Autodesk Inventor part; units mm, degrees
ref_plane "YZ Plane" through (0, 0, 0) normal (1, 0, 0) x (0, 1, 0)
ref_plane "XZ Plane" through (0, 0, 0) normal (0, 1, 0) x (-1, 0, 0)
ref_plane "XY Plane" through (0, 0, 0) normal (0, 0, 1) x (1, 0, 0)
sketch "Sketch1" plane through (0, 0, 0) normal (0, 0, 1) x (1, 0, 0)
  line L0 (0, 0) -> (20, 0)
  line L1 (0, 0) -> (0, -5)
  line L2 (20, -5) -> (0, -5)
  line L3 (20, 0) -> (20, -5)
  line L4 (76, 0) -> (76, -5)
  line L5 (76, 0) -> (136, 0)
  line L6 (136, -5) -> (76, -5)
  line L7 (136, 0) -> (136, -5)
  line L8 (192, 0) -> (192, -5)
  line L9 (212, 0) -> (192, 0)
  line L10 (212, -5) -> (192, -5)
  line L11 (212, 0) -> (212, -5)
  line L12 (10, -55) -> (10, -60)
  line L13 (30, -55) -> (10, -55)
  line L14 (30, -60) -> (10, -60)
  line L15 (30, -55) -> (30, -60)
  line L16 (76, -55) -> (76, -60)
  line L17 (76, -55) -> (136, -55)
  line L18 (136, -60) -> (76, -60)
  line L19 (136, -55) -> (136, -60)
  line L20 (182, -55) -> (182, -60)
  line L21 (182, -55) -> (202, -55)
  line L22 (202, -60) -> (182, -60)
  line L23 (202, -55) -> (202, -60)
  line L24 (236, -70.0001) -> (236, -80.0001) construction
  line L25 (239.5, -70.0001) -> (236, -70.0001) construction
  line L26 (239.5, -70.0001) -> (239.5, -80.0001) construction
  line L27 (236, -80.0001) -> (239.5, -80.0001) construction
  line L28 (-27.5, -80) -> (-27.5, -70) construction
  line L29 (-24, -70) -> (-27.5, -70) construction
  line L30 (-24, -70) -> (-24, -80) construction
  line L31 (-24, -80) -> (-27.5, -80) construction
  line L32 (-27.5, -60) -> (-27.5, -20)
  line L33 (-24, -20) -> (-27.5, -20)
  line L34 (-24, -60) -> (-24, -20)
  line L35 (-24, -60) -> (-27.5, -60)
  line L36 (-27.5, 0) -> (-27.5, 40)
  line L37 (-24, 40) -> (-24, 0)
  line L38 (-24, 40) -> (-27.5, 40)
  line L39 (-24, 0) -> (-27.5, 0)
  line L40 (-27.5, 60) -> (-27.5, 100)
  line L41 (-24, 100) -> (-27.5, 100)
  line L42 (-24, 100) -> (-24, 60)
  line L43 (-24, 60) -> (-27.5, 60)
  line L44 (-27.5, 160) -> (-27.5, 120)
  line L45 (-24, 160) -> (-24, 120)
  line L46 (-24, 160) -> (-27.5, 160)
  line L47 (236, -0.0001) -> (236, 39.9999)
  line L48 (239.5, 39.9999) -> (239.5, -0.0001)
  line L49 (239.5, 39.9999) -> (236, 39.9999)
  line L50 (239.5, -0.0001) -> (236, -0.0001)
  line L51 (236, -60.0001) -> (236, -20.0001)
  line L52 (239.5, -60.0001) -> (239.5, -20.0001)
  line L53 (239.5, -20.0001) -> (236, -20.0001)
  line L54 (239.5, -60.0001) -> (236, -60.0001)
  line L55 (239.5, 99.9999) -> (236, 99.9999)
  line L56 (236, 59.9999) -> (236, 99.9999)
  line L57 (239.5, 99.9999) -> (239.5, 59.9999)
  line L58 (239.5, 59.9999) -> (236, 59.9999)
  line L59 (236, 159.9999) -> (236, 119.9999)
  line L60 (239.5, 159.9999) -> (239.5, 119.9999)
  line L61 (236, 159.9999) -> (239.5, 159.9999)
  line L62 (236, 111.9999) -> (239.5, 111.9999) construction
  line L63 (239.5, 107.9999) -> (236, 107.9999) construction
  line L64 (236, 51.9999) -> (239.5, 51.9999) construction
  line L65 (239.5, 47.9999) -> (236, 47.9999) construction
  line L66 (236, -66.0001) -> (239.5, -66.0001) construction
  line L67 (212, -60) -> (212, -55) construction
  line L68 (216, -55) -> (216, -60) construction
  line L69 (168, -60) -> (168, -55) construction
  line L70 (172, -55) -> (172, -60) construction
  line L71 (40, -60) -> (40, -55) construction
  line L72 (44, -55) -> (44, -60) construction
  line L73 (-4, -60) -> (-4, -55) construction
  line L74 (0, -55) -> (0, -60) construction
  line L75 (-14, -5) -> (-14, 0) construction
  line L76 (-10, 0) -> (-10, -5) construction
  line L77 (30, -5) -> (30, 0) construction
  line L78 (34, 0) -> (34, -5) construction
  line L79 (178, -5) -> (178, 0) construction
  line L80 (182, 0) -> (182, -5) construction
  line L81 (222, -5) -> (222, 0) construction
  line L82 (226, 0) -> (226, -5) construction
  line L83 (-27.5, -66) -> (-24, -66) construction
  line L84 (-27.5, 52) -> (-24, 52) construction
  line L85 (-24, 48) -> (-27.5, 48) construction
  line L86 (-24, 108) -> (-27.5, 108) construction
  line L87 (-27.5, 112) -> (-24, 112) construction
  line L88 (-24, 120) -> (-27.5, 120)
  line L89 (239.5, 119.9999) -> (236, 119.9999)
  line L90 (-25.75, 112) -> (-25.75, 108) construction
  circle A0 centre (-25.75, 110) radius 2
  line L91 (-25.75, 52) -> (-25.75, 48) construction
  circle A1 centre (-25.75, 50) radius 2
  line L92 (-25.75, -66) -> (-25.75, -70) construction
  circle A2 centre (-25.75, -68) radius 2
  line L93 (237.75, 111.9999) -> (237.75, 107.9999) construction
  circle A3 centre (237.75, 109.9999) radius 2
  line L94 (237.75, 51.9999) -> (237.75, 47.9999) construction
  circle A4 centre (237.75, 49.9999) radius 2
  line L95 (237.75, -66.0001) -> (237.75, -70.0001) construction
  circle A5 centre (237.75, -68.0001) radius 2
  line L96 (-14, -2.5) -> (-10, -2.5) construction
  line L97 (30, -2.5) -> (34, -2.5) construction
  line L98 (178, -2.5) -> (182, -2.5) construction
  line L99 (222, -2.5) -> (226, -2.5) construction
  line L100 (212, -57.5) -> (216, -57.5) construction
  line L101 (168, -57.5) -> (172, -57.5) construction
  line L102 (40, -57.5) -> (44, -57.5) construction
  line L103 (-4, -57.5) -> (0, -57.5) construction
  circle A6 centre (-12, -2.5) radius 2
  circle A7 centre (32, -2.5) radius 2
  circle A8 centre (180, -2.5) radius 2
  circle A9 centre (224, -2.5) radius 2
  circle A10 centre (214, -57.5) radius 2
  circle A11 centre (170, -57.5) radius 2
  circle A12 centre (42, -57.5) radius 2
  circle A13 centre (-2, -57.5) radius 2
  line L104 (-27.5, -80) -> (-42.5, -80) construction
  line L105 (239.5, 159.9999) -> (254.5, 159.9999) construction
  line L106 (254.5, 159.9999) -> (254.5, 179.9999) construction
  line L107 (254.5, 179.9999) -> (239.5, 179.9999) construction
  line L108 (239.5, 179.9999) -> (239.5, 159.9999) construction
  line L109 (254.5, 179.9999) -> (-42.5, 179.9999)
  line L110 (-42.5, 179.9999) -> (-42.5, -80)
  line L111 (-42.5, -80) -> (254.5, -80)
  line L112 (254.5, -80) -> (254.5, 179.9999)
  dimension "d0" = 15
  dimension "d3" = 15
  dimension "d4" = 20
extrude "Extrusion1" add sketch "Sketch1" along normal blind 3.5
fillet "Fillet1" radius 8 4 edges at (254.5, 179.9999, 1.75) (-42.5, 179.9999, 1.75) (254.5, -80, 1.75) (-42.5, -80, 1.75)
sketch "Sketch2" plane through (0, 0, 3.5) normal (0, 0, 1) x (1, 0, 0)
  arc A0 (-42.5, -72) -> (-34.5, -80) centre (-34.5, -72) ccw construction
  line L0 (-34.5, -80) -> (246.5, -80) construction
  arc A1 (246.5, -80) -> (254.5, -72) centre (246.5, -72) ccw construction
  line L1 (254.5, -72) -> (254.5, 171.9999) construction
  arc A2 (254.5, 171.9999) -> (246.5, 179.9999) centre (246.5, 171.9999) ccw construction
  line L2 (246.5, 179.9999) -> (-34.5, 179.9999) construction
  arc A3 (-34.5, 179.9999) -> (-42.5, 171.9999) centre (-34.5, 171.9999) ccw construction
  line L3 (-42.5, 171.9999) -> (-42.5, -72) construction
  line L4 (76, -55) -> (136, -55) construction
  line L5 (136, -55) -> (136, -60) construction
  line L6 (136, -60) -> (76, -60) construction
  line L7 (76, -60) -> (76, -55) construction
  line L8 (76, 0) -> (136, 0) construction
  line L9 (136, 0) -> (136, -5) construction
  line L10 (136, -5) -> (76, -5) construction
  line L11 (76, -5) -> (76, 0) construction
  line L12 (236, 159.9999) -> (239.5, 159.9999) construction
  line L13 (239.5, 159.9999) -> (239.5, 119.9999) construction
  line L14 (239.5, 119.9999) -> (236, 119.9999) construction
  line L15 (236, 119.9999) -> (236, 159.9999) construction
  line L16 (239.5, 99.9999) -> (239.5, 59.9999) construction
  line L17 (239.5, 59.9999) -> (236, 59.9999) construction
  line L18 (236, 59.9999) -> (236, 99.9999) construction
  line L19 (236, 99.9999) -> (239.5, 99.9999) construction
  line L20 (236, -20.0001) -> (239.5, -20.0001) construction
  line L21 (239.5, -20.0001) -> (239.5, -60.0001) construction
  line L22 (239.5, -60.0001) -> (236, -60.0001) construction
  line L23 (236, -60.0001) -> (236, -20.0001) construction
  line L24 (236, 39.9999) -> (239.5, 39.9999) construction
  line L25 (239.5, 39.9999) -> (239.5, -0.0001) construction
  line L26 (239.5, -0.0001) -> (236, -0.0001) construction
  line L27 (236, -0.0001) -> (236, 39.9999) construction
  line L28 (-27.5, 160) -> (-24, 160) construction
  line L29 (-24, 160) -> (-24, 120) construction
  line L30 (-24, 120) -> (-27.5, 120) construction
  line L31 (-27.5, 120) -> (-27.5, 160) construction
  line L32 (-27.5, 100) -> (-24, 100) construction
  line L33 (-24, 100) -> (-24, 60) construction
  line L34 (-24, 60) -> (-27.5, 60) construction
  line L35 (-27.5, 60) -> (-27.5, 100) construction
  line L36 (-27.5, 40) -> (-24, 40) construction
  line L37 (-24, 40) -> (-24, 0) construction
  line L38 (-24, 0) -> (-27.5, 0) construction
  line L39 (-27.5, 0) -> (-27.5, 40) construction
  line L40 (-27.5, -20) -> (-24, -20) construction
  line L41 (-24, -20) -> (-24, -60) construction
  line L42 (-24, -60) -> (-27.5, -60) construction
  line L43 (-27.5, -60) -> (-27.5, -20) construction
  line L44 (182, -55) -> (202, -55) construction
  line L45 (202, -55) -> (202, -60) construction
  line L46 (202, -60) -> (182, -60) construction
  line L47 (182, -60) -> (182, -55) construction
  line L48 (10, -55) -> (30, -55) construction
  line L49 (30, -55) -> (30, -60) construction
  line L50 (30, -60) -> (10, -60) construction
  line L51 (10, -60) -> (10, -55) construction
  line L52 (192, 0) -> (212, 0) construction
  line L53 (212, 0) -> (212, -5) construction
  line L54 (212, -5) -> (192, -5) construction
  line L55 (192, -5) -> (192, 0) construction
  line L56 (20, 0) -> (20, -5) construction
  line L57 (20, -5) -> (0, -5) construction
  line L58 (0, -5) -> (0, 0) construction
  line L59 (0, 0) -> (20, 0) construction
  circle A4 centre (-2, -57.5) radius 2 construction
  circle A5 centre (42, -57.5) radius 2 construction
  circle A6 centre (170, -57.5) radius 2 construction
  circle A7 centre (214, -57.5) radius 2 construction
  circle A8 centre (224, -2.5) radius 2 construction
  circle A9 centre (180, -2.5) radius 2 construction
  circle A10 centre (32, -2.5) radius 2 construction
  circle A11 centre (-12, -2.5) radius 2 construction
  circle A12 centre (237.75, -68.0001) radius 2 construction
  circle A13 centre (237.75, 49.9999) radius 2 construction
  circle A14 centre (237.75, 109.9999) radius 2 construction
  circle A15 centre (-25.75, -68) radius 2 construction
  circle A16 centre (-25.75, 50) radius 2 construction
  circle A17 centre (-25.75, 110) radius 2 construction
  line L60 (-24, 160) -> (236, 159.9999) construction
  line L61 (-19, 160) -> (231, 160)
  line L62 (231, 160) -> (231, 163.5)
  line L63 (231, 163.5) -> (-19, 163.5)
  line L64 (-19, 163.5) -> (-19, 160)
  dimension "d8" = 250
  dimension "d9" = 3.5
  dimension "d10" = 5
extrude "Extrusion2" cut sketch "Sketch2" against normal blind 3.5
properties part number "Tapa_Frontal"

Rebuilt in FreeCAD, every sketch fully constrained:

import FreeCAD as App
import Part
import Sketcher

V = App.Vector


def edges_at(feature, points):
    """Names of the edges that pass closest to the given points."""
    edges = feature.Shape.Edges
    near = lambda p: min(range(len(edges)), key=lambda i: edges[i].distToShape(Part.Vertex(*p))[0])
    return sorted({f"Edge{near(p) + 1}" for p in points})


def add_polygon(sketch, points):
    """Adds a closed chain of lines whose ends are joined by coincident constraints."""
    first, n = sketch.GeometryCount, len(points)
    for a, b in zip(points, points[1:] + points[:1]):
        sketch.addGeometry(Part.LineSegment(App.Vector(*a, 0), App.Vector(*b, 0)), False)
    for i in range(n):
        sketch.addConstraint(Sketcher.Constraint("Coincident", first + i, 2, first + (i + 1) % n, 1))

doc = App.newDocument("Part")
body = doc.addObject("PartDesign::Body", "Body")

# Sketch on XY plane
sketch1 = doc.addObject("Sketcher::SketchObject", "Sketch")
body.addObject(sketch1)
sketch1.AttachmentSupport = (doc.XY_Plane, [""])
sketch1.MapMode = "FlatFace"
add_polygon(sketch1, [(254.5, -80), (254.5, 179.9999), (-42.5, 179.9999), (-42.5, -80)])  # lines 0-3
sketch1.addGeometry(Part.Circle(V(-25.75, -68, 0), V(0, 0, 1), 2), False)  # 4
sketch1.addGeometry(Part.Circle(V(-2, -57.5, 0), V(0, 0, 1), 2), False)  # 5
add_polygon(sketch1, [(10, -60), (10, -55), (30, -55), (30, -60)])  # lines 6-9
add_polygon(sketch1, [(-24, -60), (-27.5, -60), (-27.5, -20), (-24, -20)])  # lines 10-13
sketch1.addGeometry(Part.Circle(V(42, -57.5, 0), V(0, 0, 1), 2), False)  # 14
sketch1.addGeometry(Part.Circle(V(-12, -2.5, 0), V(0, 0, 1), 2), False)  # 15
add_polygon(sketch1, [(0, -5), (0, 0), (20, 0), (20, -5)])  # lines 16-19
add_polygon(sketch1, [(-24, 0), (-27.5, 0), (-27.5, 40), (-24, 40)])  # lines 20-23
sketch1.addGeometry(Part.Circle(V(32, -2.5, 0), V(0, 0, 1), 2), False)  # 24
add_polygon(sketch1, [(76, -60), (76, -55), (136, -55), (136, -60)])  # lines 25-28
sketch1.addGeometry(Part.Circle(V(170, -57.5, 0), V(0, 0, 1), 2), False)  # 29
add_polygon(sketch1, [(182, -60), (182, -55), (202, -55), (202, -60)])  # lines 30-33
sketch1.addGeometry(Part.Circle(V(214, -57.5, 0), V(0, 0, 1), 2), False)  # 34
sketch1.addGeometry(Part.Circle(V(237.75, -68.0001, 0), V(0, 0, 1), 2), False)  # 35
add_polygon(sketch1, [(239.5, -60.0001), (236, -60.0001), (236, -20.0001), (239.5, -20.0001)])  # lines 36-39
add_polygon(sketch1, [(76, -5), (76, 0), (136, 0), (136, -5)])  # lines 40-43
sketch1.addGeometry(Part.Circle(V(180, -2.5, 0), V(0, 0, 1), 2), False)  # 44
add_polygon(sketch1, [(192, -5), (192, 0), (212, 0), (212, -5)])  # lines 45-48
sketch1.addGeometry(Part.Circle(V(224, -2.5, 0), V(0, 0, 1), 2), False)  # 49
add_polygon(sketch1, [(239.5, -0.0001), (236, -0.0001), (236, 39.9999), (239.5, 39.9999)])  # lines 50-53
sketch1.addGeometry(Part.Circle(V(237.75, 49.9999, 0), V(0, 0, 1), 2), False)  # 54
sketch1.addGeometry(Part.Circle(V(-25.75, 50, 0), V(0, 0, 1), 2), False)  # 55
add_polygon(sketch1, [(-24, 60), (-27.5, 60), (-27.5, 100), (-24, 100)])  # lines 56-59
sketch1.addGeometry(Part.Circle(V(-25.75, 110, 0), V(0, 0, 1), 2), False)  # 60
add_polygon(sketch1, [(-27.5, 120), (-27.5, 160), (-24, 160), (-24, 120)])  # lines 61-64
add_polygon(sketch1, [(236, 99.9999), (239.5, 99.9999), (239.5, 59.9999), (236, 59.9999)])  # lines 65-68
sketch1.addGeometry(Part.Circle(V(237.75, 109.9999, 0), V(0, 0, 1), 2), False)  # 69
add_polygon(sketch1, [(236, 119.9999), (236, 159.9999), (239.5, 159.9999), (239.5, 119.9999)])  # lines 70-73
sketch1.addConstraint(Sketcher.Constraint("Vertical", 0))
sketch1.addConstraint(Sketcher.Constraint("Horizontal", 1))
sketch1.addConstraint(Sketcher.Constraint("Vertical", 2))
sketch1.addConstraint(Sketcher.Constraint("Horizontal", 3))
sketch1.addConstraint(Sketcher.Constraint("Vertical", 6))
sketch1.addConstraint(Sketcher.Constraint("Horizontal", 7))
sketch1.addConstraint(Sketcher.Constraint("Vertical", 8))
sketch1.addConstraint(Sketcher.Constraint("Horizontal", 9))
sketch1.addConstraint(Sketcher.Constraint("Horizontal", 10))
sketch1.addConstraint(Sketcher.Constraint("Vertical", 11))
sketch1.addConstraint(Sketcher.Constraint("Horizontal", 12))
sketch1.addConstraint(Sketcher.Constraint("Vertical", 13))
sketch1.addConstraint(Sketcher.Constraint("Vertical", 16))
sketch1.addConstraint(Sketcher.Constraint("Horizontal", 17))
sketch1.addConstraint(Sketcher.Constraint("Vertical", 18))
sketch1.addConstraint(Sketcher.Constraint("Horizontal", 19))
sketch1.addConstraint(Sketcher.Constraint("Horizontal", 20))
sketch1.addConstraint(Sketcher.Constraint("Vertical", 21))
sketch1.addConstraint(Sketcher.Constraint("Horizontal", 22))
sketch1.addConstraint(Sketcher.Constraint("Vertical", 23))
sketch1.addConstraint(Sketcher.Constraint("Vertical", 25))
sketch1.addConstraint(Sketcher.Constraint("Horizontal", 26))
sketch1.addConstraint(Sketcher.Constraint("Vertical", 27))
sketch1.addConstraint(Sketcher.Constraint("Horizontal", 28))
sketch1.addConstraint(Sketcher.Constraint("Vertical", 30))
sketch1.addConstraint(Sketcher.Constraint("Horizontal", 31))
sketch1.addConstraint(Sketcher.Constraint("Vertical", 32))
sketch1.addConstraint(Sketcher.Constraint("Horizontal", 33))
sketch1.addConstraint(Sketcher.Constraint("Horizontal", 36))
sketch1.addConstraint(Sketcher.Constraint("Vertical", 37))
sketch1.addConstraint(Sketcher.Constraint("Horizontal", 38))
sketch1.addConstraint(Sketcher.Constraint("Vertical", 39))
sketch1.addConstraint(Sketcher.Constraint("Vertical", 40))
sketch1.addConstraint(Sketcher.Constraint("Horizontal", 41))
sketch1.addConstraint(Sketcher.Constraint("Vertical", 42))
sketch1.addConstraint(Sketcher.Constraint("Horizontal", 43))
sketch1.addConstraint(Sketcher.Constraint("Vertical", 45))
sketch1.addConstraint(Sketcher.Constraint("Horizontal", 46))
sketch1.addConstraint(Sketcher.Constraint("Vertical", 47))
sketch1.addConstraint(Sketcher.Constraint("Horizontal", 48))
sketch1.addConstraint(Sketcher.Constraint("Horizontal", 50))
sketch1.addConstraint(Sketcher.Constraint("Vertical", 51))
sketch1.addConstraint(Sketcher.Constraint("Horizontal", 52))
sketch1.addConstraint(Sketcher.Constraint("Vertical", 53))
sketch1.addConstraint(Sketcher.Constraint("Horizontal", 56))
sketch1.addConstraint(Sketcher.Constraint("Vertical", 57))
sketch1.addConstraint(Sketcher.Constraint("Horizontal", 58))
sketch1.addConstraint(Sketcher.Constraint("Vertical", 59))
sketch1.addConstraint(Sketcher.Constraint("Vertical", 61))
sketch1.addConstraint(Sketcher.Constraint("Horizontal", 62))
sketch1.addConstraint(Sketcher.Constraint("Vertical", 63))
sketch1.addConstraint(Sketcher.Constraint("Horizontal", 64))
sketch1.addConstraint(Sketcher.Constraint("Horizontal", 65))
sketch1.addConstraint(Sketcher.Constraint("Vertical", 66))
sketch1.addConstraint(Sketcher.Constraint("Horizontal", 67))
sketch1.addConstraint(Sketcher.Constraint("Vertical", 68))
sketch1.addConstraint(Sketcher.Constraint("Vertical", 70))
sketch1.addConstraint(Sketcher.Constraint("Horizontal", 71))
sketch1.addConstraint(Sketcher.Constraint("Vertical", 72))
sketch1.addConstraint(Sketcher.Constraint("Horizontal", 73))
sketch1.addConstraint(Sketcher.Constraint("Coincident", 16, 2, -1, 1))
sketch1.addConstraint(Sketcher.Constraint("Equal", 4, 5))
sketch1.addConstraint(Sketcher.Constraint("Equal", 5, 14))
sketch1.addConstraint(Sketcher.Constraint("Equal", 14, 15))
sketch1.addConstraint(Sketcher.Constraint("Equal", 15, 24))
sketch1.addConstraint(Sketcher.Constraint("Equal", 24, 29))
sketch1.addConstraint(Sketcher.Constraint("Equal", 29, 34))
sketch1.addConstraint(Sketcher.Constraint("Equal", 34, 35))
sketch1.addConstraint(Sketcher.Constraint("Equal", 35, 44))
sketch1.addConstraint(Sketcher.Constraint("Equal", 44, 49))
sketch1.addConstraint(Sketcher.Constraint("Equal", 49, 54))
sketch1.addConstraint(Sketcher.Constraint("Equal", 54, 55))
sketch1.addConstraint(Sketcher.Constraint("Equal", 55, 60))
sketch1.addConstraint(Sketcher.Constraint("Equal", 60, 69))
sketch1.addConstraint(Sketcher.Constraint("Symmetric", 10, 2, 56, 2, -1))
sketch1.addConstraint(Sketcher.Constraint("Symmetric", 39, 2, 66, 2, -1))
sketch1.addConstraint(Sketcher.Constraint("PointOnObject", 20, 2, -1))
sketch1.addConstraint(Sketcher.Constraint("PointOnObject", 40, 2, -1))
sketch1.addConstraint(Sketcher.Constraint("PointOnObject", 45, 2, -1))
sketch1.addConstraint(Sketcher.Constraint("PointOnObject", 50, 2, -1))
sketch1.addConstraint(Sketcher.Constraint("Horizontal", 5, 3, 14, 3))
sketch1.addConstraint(Sketcher.Constraint("Horizontal", 15, 3, 24, 3))
sketch1.addConstraint(Sketcher.Constraint("Horizontal", 14, 3, 29, 3))
sketch1.addConstraint(Sketcher.Constraint("Horizontal", 29, 3, 34, 3))
sketch1.addConstraint(Sketcher.Constraint("Horizontal", 4, 3, 35, 3))
sketch1.addConstraint(Sketcher.Constraint("Horizontal", 24, 3, 44, 3))
sketch1.addConstraint(Sketcher.Constraint("Horizontal", 44, 3, 49, 3))
sketch1.addConstraint(Sketcher.Constraint("Horizontal", 54, 3, 55, 3))
sketch1.addConstraint(Sketcher.Constraint("Horizontal", 60, 3, 69, 3))
sketch1.addConstraint(Sketcher.Constraint("Horizontal", 9, 2, 10, 2))
sketch1.addConstraint(Sketcher.Constraint("Horizontal", 7, 2, 25, 2))
sketch1.addConstraint(Sketcher.Constraint("Horizontal", 13, 2, 27, 2))
sketch1.addConstraint(Sketcher.Constraint("Horizontal", 26, 2, 30, 2))
sketch1.addConstraint(Sketcher.Constraint("Horizontal", 28, 2, 32, 2))
sketch1.addConstraint(Sketcher.Constraint("Horizontal", 33, 2, 36, 2))
sketch1.addConstraint(Sketcher.Constraint("Horizontal", 12, 2, 37, 2))
sketch1.addConstraint(Sketcher.Constraint("Horizontal", 19, 2, 42, 2))
sketch1.addConstraint(Sketcher.Constraint("Horizontal", 43, 2, 47, 2))
sketch1.addConstraint(Sketcher.Constraint("Horizontal", 22, 2, 51, 2))
sketch1.addConstraint(Sketcher.Constraint("Horizontal", 58, 2, 65, 2))
sketch1.addConstraint(Sketcher.Constraint("Horizontal", 62, 2, 70, 2))
sketch1.addConstraint(Sketcher.Constraint("Horizontal", 64, 2, 72, 2))
sketch1.addConstraint(Sketcher.Constraint("Vertical", 35, 3, 54, 3))
sketch1.addConstraint(Sketcher.Constraint("Vertical", 4, 3, 55, 3))
sketch1.addConstraint(Sketcher.Constraint("Vertical", 55, 3, 60, 3))
sketch1.addConstraint(Sketcher.Constraint("Vertical", 54, 3, 69, 3))
sketch1.addConstraint(Sketcher.Constraint("Vertical", 11, 2, 20, 2))
sketch1.addConstraint(Sketcher.Constraint("Vertical", 13, 2, 22, 2))
sketch1.addConstraint(Sketcher.Constraint("Vertical", 28, 2, 40, 2))
sketch1.addConstraint(Sketcher.Constraint("Vertical", 27, 2, 41, 2))
sketch1.addConstraint(Sketcher.Constraint("Vertical", 37, 2, 50, 2))
sketch1.addConstraint(Sketcher.Constraint("Vertical", 39, 2, 52, 2))
sketch1.addConstraint(Sketcher.Constraint("Vertical", 23, 2, 58, 2))
sketch1.addConstraint(Sketcher.Constraint("Vertical", 57, 2, 61, 2))
sketch1.addConstraint(Sketcher.Constraint("Vertical", 59, 2, 62, 2))
sketch1.addConstraint(Sketcher.Constraint("Vertical", 51, 2, 67, 2))
sketch1.addConstraint(Sketcher.Constraint("Vertical", 68, 2, 70, 2))
sketch1.addConstraint(Sketcher.Constraint("Vertical", 66, 2, 71, 2))
sketch1.addConstraint(Sketcher.Constraint("Equal", 9, 17))
sketch1.addConstraint(Sketcher.Constraint("Equal", 19, 31))
sketch1.addConstraint(Sketcher.Constraint("Equal", 22, 36))
sketch1.addConstraint(Sketcher.Constraint("Equal", 33, 46))
sketch1.addConstraint(Sketcher.Constraint("Equal", 8, 16))
sketch1.addConstraint(Sketcher.Constraint("Equal", 13, 21))
sketch1.addConstraint(Sketcher.Constraint("Equal", 53, 57))
sketch1.addConstraint(Sketcher.Constraint("Equal", 59, 61))
sketch1.addConstraint(Sketcher.Constraint("DistanceX", 7, 1, 7, 2, 20.0))
sketch1.addConstraint(Sketcher.Constraint("Diameter", 4, 4.0))
sketch1.addConstraint(Sketcher.Constraint("DistanceY", 11, 2, -1, 1, 20.0))
sketch1.addConstraint(Sketcher.Constraint("DistanceX", 1, 2, 1, 1, 297.0))
sketch1.addConstraint(Sketcher.Constraint("DistanceX", 26, 1, 26, 2, 60.0))
sketch1.addConstraint(Sketcher.Constraint("DistanceY", 0, 1, 0, 2, 260.0))
sketch1.addConstraint(Sketcher.Constraint("DistanceY", 6, 1, 6, 2, 5.0))
sketch1.addConstraint(Sketcher.Constraint("DistanceY", 11, 1, 11, 2, 40.0))
sketch1.addConstraint(Sketcher.Constraint("DistanceX", 10, 2, 10, 1, 3.5))
sketch1.addConstraint(Sketcher.Constraint("DistanceY", 4, 3, -1, 1, 68.0))
sketch1.addConstraint(Sketcher.Constraint("DistanceX", 5, 3, -1, 1, 2.0))
sketch1.addConstraint(Sketcher.Constraint("DistanceX", -1, 1, 14, 3, 42.0))
sketch1.addConstraint(Sketcher.Constraint("DistanceX", 15, 3, -1, 1, 12.0))
sketch1.addConstraint(Sketcher.Constraint("DistanceX", -1, 1, 24, 3, 32.0))
sketch1.addConstraint(Sketcher.Constraint("DistanceX", -1, 1, 29, 3, 170.0))
sketch1.addConstraint(Sketcher.Constraint("DistanceX", -1, 1, 34, 3, 214.0))
sketch1.addConstraint(Sketcher.Constraint("DistanceX", -1, 1, 44, 3, 180.0))
sketch1.addConstraint(Sketcher.Constraint("DistanceX", -1, 1, 49, 3, 224.0))
sketch1.addConstraint(Sketcher.Constraint("DistanceY", -1, 1, 54, 3, 50.0))
sketch1.addConstraint(Sketcher.Constraint("DistanceY", -1, 1, 60, 3, 110.0))
sketch1.addConstraint(Sketcher.Constraint("DistanceY", -1, 1, 0, 2, 180.0))
sketch1.addConstraint(Sketcher.Constraint("DistanceX", -1, 1, 6, 2, 10.0))
sketch1.addConstraint(Sketcher.Constraint("DistanceX", 12, 2, -1, 1, 24.0))
sketch1.addConstraint(Sketcher.Constraint("DistanceX", -1, 1, 25, 2, 76.0))
sketch1.addConstraint(Sketcher.Constraint("DistanceX", -1, 1, 30, 2, 182.0))
sketch1.addConstraint(Sketcher.Constraint("DistanceX", -1, 1, 36, 2, 236.0))
sketch1.addConstraint(Sketcher.Constraint("DistanceX", -1, 1, 45, 2, 192.0))
sketch1.addConstraint(Sketcher.Constraint("DistanceY", -1, 1, 61, 2, 160.0))
sketch1.addConstraint(Sketcher.Constraint("DistanceY", 5, 3, -1, 1, 57.5))
sketch1.addConstraint(Sketcher.Constraint("DistanceY", 15, 3, -1, 1, 2.5))
sketch1.addConstraint(Sketcher.Constraint("DistanceX", -1, 1, 0, 2, 254.5))
sketch1.addConstraint(Sketcher.Constraint("DistanceX", 4, 3, -1, 1, 25.75))
sketch1.addConstraint(Sketcher.Constraint("DistanceX", -1, 1, 35, 3, 237.75))
pad1 = doc.addObject("PartDesign::Pad", "Pad")
body.addObject(pad1)
pad1.Profile = sketch1
pad1.Length = 3.5
doc.recompute()

fillet = doc.addObject("PartDesign::Fillet", "Fillet")
body.addObject(fillet)
fillet.Base = (pad1, edges_at(pad1, [
    (254.5, 180, 1.75),
    (-42.5, 180, 1.75),
    (254.5, -80, 1.75),
    (-42.5, -80, 1.75),
]))
fillet.Radius = 8

# Sketch on XY plane
sketch2 = doc.addObject("Sketcher::SketchObject", "Sketch001")
body.addObject(sketch2)
sketch2.AttachmentSupport = (doc.XY_Plane, [""])
sketch2.MapMode = "FlatFace"
sketch2.AttachmentOffset = App.Placement(V(0, 0, 3.5), App.Rotation())
add_polygon(sketch2, [(-19, 163.5), (-19, 160), (231, 160), (231, 163.5)])  # lines 0-3
sketch2.addConstraint(Sketcher.Constraint("Vertical", 0))
sketch2.addConstraint(Sketcher.Constraint("Horizontal", 1))
sketch2.addConstraint(Sketcher.Constraint("Vertical", 2))
sketch2.addConstraint(Sketcher.Constraint("Horizontal", 3))
sketch2.addConstraint(Sketcher.Constraint("DistanceX", 1, 1, 1, 2, 250.0))
sketch2.addConstraint(Sketcher.Constraint("DistanceY", 0, 2, 0, 1, 3.5))
sketch2.addConstraint(Sketcher.Constraint("DistanceX", 0, 2, -1, 1, 19.0))
sketch2.addConstraint(Sketcher.Constraint("DistanceY", -1, 1, 0, 2, 160.0))
pocket1 = doc.addObject("PartDesign::Pocket", "Pocket")
body.addObject(pocket1)
pocket1.Profile = sketch2
pocket1.Length = 3.5

doc.recompute()
